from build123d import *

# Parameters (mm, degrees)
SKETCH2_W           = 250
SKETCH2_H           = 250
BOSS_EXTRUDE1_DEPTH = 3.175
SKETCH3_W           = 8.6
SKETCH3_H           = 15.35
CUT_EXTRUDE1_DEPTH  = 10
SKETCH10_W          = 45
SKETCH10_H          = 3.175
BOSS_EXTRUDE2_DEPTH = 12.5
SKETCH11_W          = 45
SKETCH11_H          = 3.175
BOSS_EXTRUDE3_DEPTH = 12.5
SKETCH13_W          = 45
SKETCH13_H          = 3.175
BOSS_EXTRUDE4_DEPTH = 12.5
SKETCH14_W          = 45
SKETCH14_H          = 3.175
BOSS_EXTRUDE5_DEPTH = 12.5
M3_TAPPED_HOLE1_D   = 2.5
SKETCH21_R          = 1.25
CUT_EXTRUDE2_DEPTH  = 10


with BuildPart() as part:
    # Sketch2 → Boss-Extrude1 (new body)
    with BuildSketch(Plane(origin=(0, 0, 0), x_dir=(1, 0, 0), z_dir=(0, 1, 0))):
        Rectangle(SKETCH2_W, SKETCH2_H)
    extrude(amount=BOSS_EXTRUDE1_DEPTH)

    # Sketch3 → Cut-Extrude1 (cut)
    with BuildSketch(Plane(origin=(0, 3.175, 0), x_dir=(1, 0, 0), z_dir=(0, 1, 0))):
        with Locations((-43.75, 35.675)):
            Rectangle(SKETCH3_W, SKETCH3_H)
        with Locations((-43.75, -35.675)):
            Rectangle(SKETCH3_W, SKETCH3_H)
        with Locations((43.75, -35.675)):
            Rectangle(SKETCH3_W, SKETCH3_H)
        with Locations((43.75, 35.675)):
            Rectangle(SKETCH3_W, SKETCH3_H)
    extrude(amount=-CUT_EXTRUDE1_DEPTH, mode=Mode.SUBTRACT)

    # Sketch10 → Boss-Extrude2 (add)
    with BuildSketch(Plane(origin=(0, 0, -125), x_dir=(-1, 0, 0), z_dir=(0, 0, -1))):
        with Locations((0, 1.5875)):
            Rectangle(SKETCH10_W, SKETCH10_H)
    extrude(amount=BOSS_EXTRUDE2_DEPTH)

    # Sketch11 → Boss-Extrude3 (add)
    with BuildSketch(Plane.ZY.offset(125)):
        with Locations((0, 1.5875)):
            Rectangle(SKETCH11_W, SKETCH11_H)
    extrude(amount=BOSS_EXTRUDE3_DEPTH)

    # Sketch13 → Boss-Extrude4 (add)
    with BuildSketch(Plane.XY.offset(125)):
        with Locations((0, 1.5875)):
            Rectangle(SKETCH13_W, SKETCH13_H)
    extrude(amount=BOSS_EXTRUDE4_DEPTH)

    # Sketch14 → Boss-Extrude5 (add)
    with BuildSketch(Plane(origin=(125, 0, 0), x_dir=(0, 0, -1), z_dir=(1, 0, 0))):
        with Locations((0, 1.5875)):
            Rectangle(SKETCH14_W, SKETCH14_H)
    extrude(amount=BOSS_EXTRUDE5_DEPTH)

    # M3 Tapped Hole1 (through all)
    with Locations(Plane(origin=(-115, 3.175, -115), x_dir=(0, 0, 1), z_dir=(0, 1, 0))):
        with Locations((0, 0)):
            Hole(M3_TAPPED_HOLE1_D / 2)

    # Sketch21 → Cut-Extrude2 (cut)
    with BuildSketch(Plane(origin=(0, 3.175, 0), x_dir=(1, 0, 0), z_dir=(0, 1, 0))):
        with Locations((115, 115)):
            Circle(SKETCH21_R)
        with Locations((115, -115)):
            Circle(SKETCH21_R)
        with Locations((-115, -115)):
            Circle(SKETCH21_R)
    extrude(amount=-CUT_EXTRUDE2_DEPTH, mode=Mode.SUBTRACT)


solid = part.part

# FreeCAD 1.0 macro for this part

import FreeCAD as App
import Part
import Sketcher

V = App.Vector
Q = App.Units.Quantity


def add_polygon(sketch, points):
    """Adds a closed chain of lines whose ends are joined by coincident constraints."""
    first, n = sketch.GeometryCount, len(points)
    for a, b in zip(points, points[1:] + points[:1]):
        sketch.addGeometry(Part.LineSegment(App.Vector(*a, 0), App.Vector(*b, 0)), False)
    for i in range(n):
        sketch.addConstraint(Sketcher.Constraint("Coincident", first + i, 2, first + (i + 1) % n, 1))

doc = App.newDocument("Part")
body = doc.addObject("PartDesign::Body", "Body")

sketch1 = body.newObject("Sketcher::SketchObject", "Sketch")
sketch1.AttachmentSupport = (doc.getObject("XZ_Plane"), [""])
sketch1.MapMode = "FlatFace"
add_polygon(sketch1, [(-125, -125), (-125, 125), (125, 125), (125, -125)])
sketch1.addConstraint([
    Sketcher.Constraint("Vertical", 0),
    Sketcher.Constraint("Horizontal", 1),
    Sketcher.Constraint("Vertical", 2),
    Sketcher.Constraint("Horizontal", 3),
    Sketcher.Constraint("Symmetric", 0, 2, 2, 2, -1, 1),
    Sketcher.Constraint("Equal", 3, 0),
    Sketcher.Constraint("DistanceX", 1, 1, 1, 2, Q("250 mm")),
])
pad1 = body.newObject("PartDesign::Pad", "Pad")
pad1.Profile = sketch1
pad1.Length = 3.175
pad1.Reversed = True

sketch2 = body.newObject("Sketcher::SketchObject", "Sketch001")
sketch2.AttachmentSupport = (doc.getObject("XZ_Plane"), [""])
sketch2.MapMode = "FlatFace"
sketch2.AttachmentOffset = App.Placement(V(0, 0, -3.175), App.Rotation())
add_polygon(sketch2, [(-48, -43), (-48, -28), (-39, -28), (-39, -43)])
add_polygon(sketch2, [(-48, 28), (-48, 43), (-39, 43), (-39, 28)])
add_polygon(sketch2, [(39, 28), (39, 43), (48, 43), (48, 28)])
add_polygon(sketch2, [(39, -43), (39, -28), (48, -28), (48, -43)])
sketch2.addConstraint([
    Sketcher.Constraint("Vertical", 0),
    Sketcher.Constraint("Horizontal", 1),
    Sketcher.Constraint("Vertical", 2),
    Sketcher.Constraint("Horizontal", 3),
    Sketcher.Constraint("Vertical", 4),
    Sketcher.Constraint("Horizontal", 5),
    Sketcher.Constraint("Vertical", 6),
    Sketcher.Constraint("Horizontal", 7),
    Sketcher.Constraint("Vertical", 8),
    Sketcher.Constraint("Horizontal", 9),
    Sketcher.Constraint("Vertical", 10),
    Sketcher.Constraint("Horizontal", 11),
    Sketcher.Constraint("Vertical", 12),
    Sketcher.Constraint("Horizontal", 13),
    Sketcher.Constraint("Vertical", 14),
    Sketcher.Constraint("Horizontal", 15),
    Sketcher.Constraint("Symmetric", 2, 2, 8, 2, -1, 1),
    Sketcher.Constraint("Symmetric", 0, 2, 10, 2, -1, 1),
    Sketcher.Constraint("Symmetric", 6, 2, 12, 2, -1, 1),
    Sketcher.Constraint("Symmetric", 4, 2, 14, 2, -1, 1),
    Sketcher.Constraint("Symmetric", 5, 2, 8, 2, -2),
    Sketcher.Constraint("Symmetric", 7, 2, 10, 2, -2),
    Sketcher.Constraint("DistanceX", 1, 1, 1, 2, Q("8.6 mm")),
    Sketcher.Constraint("DistanceY", 0, 2, -1, 1, Q("28 mm")),
    Sketcher.Constraint("DistanceY", 0, 1, 0, 2, Q("15.35 mm")),
    Sketcher.Constraint("DistanceX", 5, 2, 8, 2, Q("78.9 mm")),
])
pocket1 = body.newObject("PartDesign::Pocket", "Pocket")
pocket1.Profile = sketch2
pocket1.Length = 10
pocket1.Reversed = True

sketch3 = body.newObject("Sketcher::SketchObject", "Sketch002")
sketch3.AttachmentSupport = (doc.getObject("XY_Plane"), [""])
sketch3.MapMode = "FlatFace"
sketch3.AttachmentOffset = App.Placement(V(0, 0, -125), App.Rotation())
add_polygon(sketch3, [(22.5, 3.2), (22.5, 0), (-22.5, 0), (-22.5, 3.2)])
sketch3.addConstraint([
    Sketcher.Constraint("Vertical", 0),
    Sketcher.Constraint("Horizontal", 1),
    Sketcher.Constraint("Vertical", 2),
    Sketcher.Constraint("Horizontal", 3),
    Sketcher.Constraint("Symmetric", 0, 2, 1, 2, -1, 1),
    Sketcher.Constraint("DistanceX", 1, 2, 1, 1, Q("45 mm")),
    Sketcher.Constraint("DistanceY", 0, 2, 0, 1, Q("3.175 mm")),
])
pad2 = body.newObject("PartDesign::Pad", "Pad001")
pad2.Profile = sketch3
pad2.Length = 12.5
pad2.Reversed = True

sketch4 = body.newObject("Sketcher::SketchObject", "Sketch003")
sketch4.AttachmentSupport = (doc.getObject("YZ_Plane"), [""])
sketch4.MapMode = "FlatFace"
sketch4.AttachmentOffset = App.Placement(V(0, 0, -125), App.Rotation())
add_polygon(sketch4, [(3.2, -22.5), (0, -22.5), (0, 22.5), (3.2, 22.5)])
sketch4.addConstraint([
    Sketcher.Constraint("Horizontal", 0),
    Sketcher.Constraint("Vertical", 1),
    Sketcher.Constraint("Horizontal", 2),
    Sketcher.Constraint("Vertical", 3),
    Sketcher.Constraint("Symmetric", 0, 2, 1, 2, -1, 1),
    Sketcher.Constraint("DistanceY", 1, 1, 1, 2, Q("45 mm")),
    Sketcher.Constraint("DistanceX", 0, 2, 0, 1, Q("3.175 mm")),
])
pad3 = body.newObject("PartDesign::Pad", "Pad002")
pad3.Profile = sketch4
pad3.Length = 12.5
pad3.Reversed = True

sketch5 = body.newObject("Sketcher::SketchObject", "Sketch004")
sketch5.AttachmentSupport = (doc.getObject("XY_Plane"), [""])
sketch5.MapMode = "FlatFace"
sketch5.AttachmentOffset = App.Placement(V(0, 0, 125), App.Rotation())
add_polygon(sketch5, [(-22.5, 3.2), (-22.5, 0), (22.5, 0), (22.5, 3.2)])
sketch5.addConstraint([
    Sketcher.Constraint("Vertical", 0),
    Sketcher.Constraint("Horizontal", 1),
    Sketcher.Constraint("Vertical", 2),
    Sketcher.Constraint("Horizontal", 3),
    Sketcher.Constraint("Symmetric", 0, 2, 1, 2, -1, 1),
    Sketcher.Constraint("DistanceX", 1, 1, 1, 2, Q("45 mm")),
    Sketcher.Constraint("DistanceY", 0, 2, 0, 1, Q("3.175 mm")),
])
pad4 = body.newObject("PartDesign::Pad", "Pad003")
pad4.Profile = sketch5
pad4.Length = 12.5

sketch6 = body.newObject("Sketcher::SketchObject", "Sketch005")
sketch6.AttachmentSupport = (doc.getObject("YZ_Plane"), [""])
sketch6.MapMode = "FlatFace"
sketch6.AttachmentOffset = App.Placement(V(0, 0, 125), App.Rotation())
add_polygon(sketch6, [(3.2, 22.5), (0, 22.5), (0, -22.5), (3.2, -22.5)])
sketch6.addConstraint([
    Sketcher.Constraint("Horizontal", 0),
    Sketcher.Constraint("Vertical", 1),
    Sketcher.Constraint("Horizontal", 2),
    Sketcher.Constraint("Vertical", 3),
    Sketcher.Constraint("Symmetric", 0, 2, 1, 2, -1, 1),
    Sketcher.Constraint("DistanceY", 1, 2, 1, 1, Q("45 mm")),
    Sketcher.Constraint("DistanceX", 0, 2, 0, 1, Q("3.175 mm")),
])
pad5 = body.newObject("PartDesign::Pad", "Pad004")
pad5.Profile = sketch6
pad5.Length = 12.5

sketch7 = body.newObject("Sketcher::SketchObject", "Sketch006")
sketch7.AttachmentSupport = (doc.getObject("XZ_Plane"), [""])
sketch7.MapMode = "FlatFace"
sketch7.AttachmentOffset = App.Placement(V(0, 0, -3.175), App.Rotation())
sketch7.addGeometry(Part.Circle(V(-115, -115, 0), V(0, 0, 1), 1.2), False)
sketch7.addConstraint([
    Sketcher.Constraint("Diameter", 0, Q("2.5 mm")),
    Sketcher.Constraint("DistanceX", 0, 3, -1, 1, Q("115 mm")),
    Sketcher.Constraint("DistanceY", 0, 3, -1, 1, Q("115 mm")),
])
doc.recompute()
hole = body.newObject("PartDesign::Hole", "Hole")
hole.Profile = sketch7
hole.ThreadType = "None"
hole.Diameter = 2.5
hole.DepthType = "ThroughAll"
hole.Reversed = True

sketch8 = body.newObject("Sketcher::SketchObject", "Sketch007")
sketch8.AttachmentSupport = (doc.getObject("XZ_Plane"), [""])
sketch8.MapMode = "FlatFace"
sketch8.AttachmentOffset = App.Placement(V(0, 0, -3.175), App.Rotation())
sketch8.addGeometry([
    Part.Circle(V(115, -115, 0), V(0, 0, 1), 1.2),
    Part.Circle(V(115, 115, 0), V(0, 0, 1), 1.2),
    Part.Circle(V(-115, 115, 0), V(0, 0, 1), 1.2),
], False)
sketch8.addConstraint([
    Sketcher.Constraint("Equal", 0, 1),
    Sketcher.Constraint("Equal", 1, 2),
    Sketcher.Constraint("Symmetric", 0, 3, 2, 3, -1, 1),
    Sketcher.Constraint("Symmetric", 1, 3, 2, 3, -2),
    Sketcher.Constraint("Diameter", 0, Q("2.5 mm")),
    Sketcher.Constraint("DistanceX", -1, 1, 0, 3, Q("115 mm")),
    Sketcher.Constraint("DistanceY", 0, 3, -1, 1, Q("115 mm")),
])
pocket2 = body.newObject("PartDesign::Pocket", "Pocket001")
pocket2.Profile = sketch8
pocket2.Length = 10
pocket2.Reversed = True

doc.recompute()
